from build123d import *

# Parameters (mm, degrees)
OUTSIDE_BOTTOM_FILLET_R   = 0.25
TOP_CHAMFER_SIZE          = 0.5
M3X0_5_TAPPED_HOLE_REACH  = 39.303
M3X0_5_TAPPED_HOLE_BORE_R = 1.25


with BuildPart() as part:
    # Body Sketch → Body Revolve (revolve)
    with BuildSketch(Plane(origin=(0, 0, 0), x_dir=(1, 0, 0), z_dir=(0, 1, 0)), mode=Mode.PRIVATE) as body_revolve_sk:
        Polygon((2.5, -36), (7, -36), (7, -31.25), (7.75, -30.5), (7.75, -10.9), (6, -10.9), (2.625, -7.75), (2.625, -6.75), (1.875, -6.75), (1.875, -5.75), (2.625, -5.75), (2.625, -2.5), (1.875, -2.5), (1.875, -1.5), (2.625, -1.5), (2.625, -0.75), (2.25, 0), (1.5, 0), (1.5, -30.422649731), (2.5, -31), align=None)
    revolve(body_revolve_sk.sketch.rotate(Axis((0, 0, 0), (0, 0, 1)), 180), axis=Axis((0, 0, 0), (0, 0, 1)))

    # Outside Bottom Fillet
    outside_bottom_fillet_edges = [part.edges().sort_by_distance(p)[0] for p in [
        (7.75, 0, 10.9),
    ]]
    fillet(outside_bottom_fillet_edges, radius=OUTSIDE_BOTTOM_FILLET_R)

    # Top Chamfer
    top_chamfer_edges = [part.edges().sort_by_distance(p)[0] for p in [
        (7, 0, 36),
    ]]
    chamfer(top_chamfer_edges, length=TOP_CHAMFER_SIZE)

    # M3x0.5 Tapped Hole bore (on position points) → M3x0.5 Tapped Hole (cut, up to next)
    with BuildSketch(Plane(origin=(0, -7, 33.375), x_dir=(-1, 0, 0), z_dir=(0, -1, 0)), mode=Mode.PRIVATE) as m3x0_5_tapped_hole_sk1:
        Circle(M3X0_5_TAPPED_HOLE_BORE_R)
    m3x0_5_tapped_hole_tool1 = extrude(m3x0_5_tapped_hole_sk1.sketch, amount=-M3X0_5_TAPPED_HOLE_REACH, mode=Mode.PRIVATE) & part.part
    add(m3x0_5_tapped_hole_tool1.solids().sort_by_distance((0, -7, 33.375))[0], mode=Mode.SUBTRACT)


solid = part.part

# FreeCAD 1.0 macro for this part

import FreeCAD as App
import Part
import Sketcher

V = App.Vector
Q = App.Units.Quantity


def edges_at(feature, points):
    """Names of the edges that pass closest to the given points."""
    edges = feature.Shape.Edges
    near = lambda p: min(range(len(edges)), key=lambda i: edges[i].distToShape(Part.Vertex(*p))[0])
    return sorted({f"Edge{near(p) + 1}" for p in points})


def add_polygon(sketch, points):
    """Adds a closed chain of lines whose ends are joined by coincident constraints."""
    first, n = sketch.GeometryCount, len(points)
    for a, b in zip(points, points[1:] + points[:1]):
        sketch.addGeometry(Part.LineSegment(App.Vector(*a, 0), App.Vector(*b, 0)), False)
    for i in range(n):
        sketch.addConstraint(Sketcher.Constraint("Coincident", first + i, 2, first + (i + 1) % n, 1))

doc = App.newDocument("Part")
params = doc.addObject("Spreadsheet::Sheet", "Params")
for row, (alias, value) in enumerate([
    ("sketch1_height", "1 mm"),
    ("sketch1_height2", "5 mm"),
    ("sketch1_width", "4.5 mm"),
    ("sketch1_height3", "19.6 mm"),
    ("sketch1_width2", "1.75 mm"),
    ("revolution_angle", "360 deg"),
    ("fillet_radius", "0.25 mm"),
    ("chamfer_size", "0.5 mm"),
    ("sketch2_diameter", "2.5 mm"),
], start=1):
    params.set(f"A{row}", alias)
    params.set(f"B{row}", "=" + value)
    params.setAlias(f"B{row}", alias)

body = doc.addObject("PartDesign::Body", "Body")

sketch1 = body.newObject("Sketcher::SketchObject", "Sketch")
sketch1.AttachmentSupport = (doc.getObject("XZ_Plane"), [""])
sketch1.MapMode = "FlatFace"
add_polygon(sketch1, [(2.5, 36), (7, 36), (7, 31.25), (7.75, 30.5), (7.75, 10.9), (6, 10.9), (2.625, 7.75), (2.625, 6.75), (1.875, 6.75), (1.875, 5.75), (2.625, 5.75), (2.625, 2.5), (1.875, 2.5), (1.875, 1.5), (2.625, 1.5), (2.625, 0.75), (2.25, 0), (1.5, 0), (1.5, 30.42265), (2.5, 31)])
sketch1.addConstraint(Sketcher.Constraint("Horizontal", 0))
sketch1.addConstraint(Sketcher.Constraint("Vertical", 1))
sketch1.addConstraint(Sketcher.Constraint("Vertical", 3))
sketch1.addConstraint(Sketcher.Constraint("Horizontal", 4))
sketch1.addConstraint(Sketcher.Constraint("Vertical", 6))
sketch1.addConstraint(Sketcher.Constraint("Horizontal", 7))
sketch1.addConstraint(Sketcher.Constraint("Vertical", 8))
sketch1.addConstraint(Sketcher.Constraint("Horizontal", 9))
sketch1.addConstraint(Sketcher.Constraint("Vertical", 10))
sketch1.addConstraint(Sketcher.Constraint("Horizontal", 11))
sketch1.addConstraint(Sketcher.Constraint("Vertical", 12))
sketch1.addConstraint(Sketcher.Constraint("Horizontal", 13))
sketch1.addConstraint(Sketcher.Constraint("Vertical", 14))
sketch1.addConstraint(Sketcher.Constraint("Horizontal", 16))
sketch1.addConstraint(Sketcher.Constraint("Vertical", 17))
sketch1.addConstraint(Sketcher.Constraint("Vertical", 19))
sketch1.addConstraint(Sketcher.Constraint("PointOnObject", 15, 2, -1))
sketch1.addConstraint(Sketcher.Constraint("Vertical", 6, 2, 9, 2))
sketch1.addConstraint(Sketcher.Constraint("Vertical", 8, 2, 11, 2))
sketch1.addConstraint(Sketcher.Constraint("Vertical", 10, 2, 13, 2))
sketch1.addConstraint(Sketcher.Constraint("Equal", 13, 16))
sketch1.addConstraint(Sketcher.Constraint("Equal", 6, 8))
sketch1.addConstraint(Sketcher.Constraint("Equal", 8, 12))
sketch1.addConstraint(Sketcher.Constraint("Equal", 16, 14))
sketch1.addConstraint(Sketcher.Constraint("DistanceY", 6, 2, 6, 1, 1.0))
sketch1.addConstraint(Sketcher.Constraint("DistanceY", 19, 1, 19, 2, 5.0))
sketch1.addConstraint(Sketcher.Constraint("Angle", 2, Q("-45 deg")))
sketch1.addConstraint(Sketcher.Constraint("Angle", 18, Q("30 deg")))
sketch1.addConstraint(Sketcher.Constraint("DistanceX", 0, 1, 0, 2, 4.5))
sketch1.addConstraint(Sketcher.Constraint("DistanceY", 3, 2, 3, 1, 19.6))
sketch1.addConstraint(Sketcher.Constraint("DistanceX", -1, 1, 0, 2, 7.0))
sketch1.addConstraint(Sketcher.Constraint("DistanceY", -1, 1, 0, 2, 36.0))
sketch1.addConstraint(Sketcher.Constraint("DistanceX", -1, 1, 4, 2, 6.0))
sketch1.addConstraint(Sketcher.Constraint("DistanceY", 14, 2, 9, 2, 5.0))
sketch1.addConstraint(Sketcher.Constraint("DistanceX", 17, 2, 18, 2, 1.0))
sketch1.addConstraint(Sketcher.Constraint("DistanceX", 4, 2, 4, 1, 1.75))
sketch1.addConstraint(Sketcher.Constraint("DistanceX", 7, 2, 7, 1, 0.75))
sketch1.addConstraint(Sketcher.Constraint("DistanceY", 1, 2, 1, 1, 4.75))
sketch1.addConstraint(Sketcher.Constraint("DistanceY", -1, 1, 10, 2, 2.5))
sketch1.addConstraint(Sketcher.Constraint("DistanceX", -1, 1, 5, 2, 2.625))
sketch1.setExpression("Constraints[44]", "Params.sketch1_height")
sketch1.setExpression("Constraints[45]", "Params.sketch1_height2")
sketch1.setExpression("Constraints[48]", "Params.sketch1_width")
sketch1.setExpression("Constraints[49]", "Params.sketch1_height3")
sketch1.setExpression("Constraints[55]", "Params.sketch1_width2")
revolution = body.newObject("PartDesign::Revolution", "Revolution")
revolution.Profile = sketch1
revolution.ReferenceAxis = (sketch1, ["V_Axis"])
revolution.setExpression("Angle", "Params.revolution_angle")
doc.recompute()

fillet = body.newObject("PartDesign::Fillet", "Fillet")
fillet.Base = (revolution, edges_at(revolution, [(7.75, 0, 10.9)]))
fillet.setExpression("Radius", "Params.fillet_radius")
doc.recompute()

chamfer = body.newObject("PartDesign::Chamfer", "Chamfer")
chamfer.Base = (fillet, edges_at(fillet, [(7, 0, 36)]))
chamfer.setExpression("Size", "Params.chamfer_size")

sketch2 = body.newObject("Sketcher::SketchObject", "Sketch001")
sketch2.AttachmentSupport = (doc.getObject("XZ_Plane"), [""])
sketch2.MapMode = "FlatFace"
sketch2.AttachmentOffset = App.Placement(V(0, 0, 7), App.Rotation())
sketch2.addGeometry(Part.Circle(V(0, 33.375, 0), V(0, 0, 1), 1.25), False)
sketch2.addConstraint(Sketcher.Constraint("PointOnObject", 0, 3, -2))
sketch2.addConstraint(Sketcher.Constraint("Diameter", 0, 2.5))
sketch2.addConstraint(Sketcher.Constraint("DistanceY", -1, 1, 0, 3, 33.375))
sketch2.setExpression("Constraints[1]", "Params.sketch2_diameter")
pocket1 = body.newObject("PartDesign::Pocket", "Pocket")
pocket1.Profile = sketch2
pocket1.Type = "UpToFirst"

doc.recompute()
